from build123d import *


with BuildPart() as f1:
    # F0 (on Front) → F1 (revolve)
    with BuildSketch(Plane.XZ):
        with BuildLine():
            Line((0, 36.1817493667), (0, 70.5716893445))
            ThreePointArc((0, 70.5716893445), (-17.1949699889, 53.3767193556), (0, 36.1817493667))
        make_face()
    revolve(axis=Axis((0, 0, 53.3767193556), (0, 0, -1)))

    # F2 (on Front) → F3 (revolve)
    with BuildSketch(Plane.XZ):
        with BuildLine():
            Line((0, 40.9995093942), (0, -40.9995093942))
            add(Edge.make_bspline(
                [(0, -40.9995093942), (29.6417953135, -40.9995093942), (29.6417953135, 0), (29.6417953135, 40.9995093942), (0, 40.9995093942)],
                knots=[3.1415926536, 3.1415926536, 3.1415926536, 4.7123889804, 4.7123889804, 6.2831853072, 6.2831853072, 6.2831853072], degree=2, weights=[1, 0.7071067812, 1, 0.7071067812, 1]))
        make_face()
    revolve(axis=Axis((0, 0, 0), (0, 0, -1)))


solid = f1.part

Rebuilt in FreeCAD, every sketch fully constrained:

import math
import FreeCAD as App
import Part
import Sketcher

doc = App.newDocument("Part")
params = doc.addObject("Spreadsheet::Sheet", "Params")
for row, (alias, value) in enumerate([
    ("revolution_angle", "360 deg"),
    ("revolution2_angle", "360 deg"),
], start=1):
    params.set(f"A{row}", alias)
    params.set(f"B{row}", "=" + value)
    params.setAlias(f"B{row}", alias)

body = doc.addObject("PartDesign::Body", "Body")

# Sketch on XZ plane
sketch1 = body.newObject("Sketcher::SketchObject", "Sketch")
sketch1.AttachmentSupport = (doc.getObject("XZ_Plane"), [""])
sketch1.MapMode = "FlatFace"
sketch1.addGeometry([
    Part.LineSegment(App.Vector(0, 36, 0), App.Vector(0, 71, 0)),
    Part.ArcOfCircle(Part.Circle(App.Vector(0, 53, 0), App.Vector(0, 0, 1), 17), math.radians(90), math.radians(270)),
], False)
sketch1.addConstraint([
    Sketcher.Constraint("Coincident", 0, 1, 1, 2),
    Sketcher.Constraint("Coincident", 1, 1, 0, 2),
    Sketcher.Constraint("Vertical", 0),
    Sketcher.Constraint("PointOnObject", 1, 3, -2),
    Sketcher.Constraint("PointOnObject", 0, 1, -2),
    Sketcher.Constraint("Radius", 1, 17.19497),
    Sketcher.Constraint("DistanceY", -1, 1, 1, 3, 53.376719),
])
revolution = body.newObject("PartDesign::Revolution", "Revolution")
revolution.Profile = sketch1
revolution.ReferenceAxis = (sketch1, ["V_Axis"])
revolution.setExpression("Angle", "Params.revolution_angle")

# Sketch on XZ plane
sketch2 = body.newObject("Sketcher::SketchObject", "Sketch001")
sketch2.AttachmentSupport = (doc.getObject("XZ_Plane"), [""])
sketch2.MapMode = "FlatFace"
sketch2.addGeometry([
    Part.LineSegment(App.Vector(0, 40.999509, 0), App.Vector(0, -40.999509, 0)),
    Part.BSplineCurve([App.Vector(0, -40.999509, 0), App.Vector(29.641795, -40.999509, 0), App.Vector(29.641795, 0, 0), App.Vector(29.641795, 40.999509, 0), App.Vector(0, 40.999509, 0)], [3, 2, 3], [3.141592654, 4.71238898, 6.283185307], False, 2, [1, 0.707106781, 1, 0.707106781, 1], False),
], False)
sketch2.addConstraint([
    Sketcher.Constraint("Block", 1),
    Sketcher.Constraint("Coincident", 0, 1, 1, 2),
    Sketcher.Constraint("Coincident", 1, 1, 0, 2),
])
revolution2 = body.newObject("PartDesign::Revolution", "Revolution001")
revolution2.Profile = sketch2
revolution2.ReferenceAxis = (sketch2, ["V_Axis"])
revolution2.setExpression("Angle", "Params.revolution2_angle")

doc.recompute()
